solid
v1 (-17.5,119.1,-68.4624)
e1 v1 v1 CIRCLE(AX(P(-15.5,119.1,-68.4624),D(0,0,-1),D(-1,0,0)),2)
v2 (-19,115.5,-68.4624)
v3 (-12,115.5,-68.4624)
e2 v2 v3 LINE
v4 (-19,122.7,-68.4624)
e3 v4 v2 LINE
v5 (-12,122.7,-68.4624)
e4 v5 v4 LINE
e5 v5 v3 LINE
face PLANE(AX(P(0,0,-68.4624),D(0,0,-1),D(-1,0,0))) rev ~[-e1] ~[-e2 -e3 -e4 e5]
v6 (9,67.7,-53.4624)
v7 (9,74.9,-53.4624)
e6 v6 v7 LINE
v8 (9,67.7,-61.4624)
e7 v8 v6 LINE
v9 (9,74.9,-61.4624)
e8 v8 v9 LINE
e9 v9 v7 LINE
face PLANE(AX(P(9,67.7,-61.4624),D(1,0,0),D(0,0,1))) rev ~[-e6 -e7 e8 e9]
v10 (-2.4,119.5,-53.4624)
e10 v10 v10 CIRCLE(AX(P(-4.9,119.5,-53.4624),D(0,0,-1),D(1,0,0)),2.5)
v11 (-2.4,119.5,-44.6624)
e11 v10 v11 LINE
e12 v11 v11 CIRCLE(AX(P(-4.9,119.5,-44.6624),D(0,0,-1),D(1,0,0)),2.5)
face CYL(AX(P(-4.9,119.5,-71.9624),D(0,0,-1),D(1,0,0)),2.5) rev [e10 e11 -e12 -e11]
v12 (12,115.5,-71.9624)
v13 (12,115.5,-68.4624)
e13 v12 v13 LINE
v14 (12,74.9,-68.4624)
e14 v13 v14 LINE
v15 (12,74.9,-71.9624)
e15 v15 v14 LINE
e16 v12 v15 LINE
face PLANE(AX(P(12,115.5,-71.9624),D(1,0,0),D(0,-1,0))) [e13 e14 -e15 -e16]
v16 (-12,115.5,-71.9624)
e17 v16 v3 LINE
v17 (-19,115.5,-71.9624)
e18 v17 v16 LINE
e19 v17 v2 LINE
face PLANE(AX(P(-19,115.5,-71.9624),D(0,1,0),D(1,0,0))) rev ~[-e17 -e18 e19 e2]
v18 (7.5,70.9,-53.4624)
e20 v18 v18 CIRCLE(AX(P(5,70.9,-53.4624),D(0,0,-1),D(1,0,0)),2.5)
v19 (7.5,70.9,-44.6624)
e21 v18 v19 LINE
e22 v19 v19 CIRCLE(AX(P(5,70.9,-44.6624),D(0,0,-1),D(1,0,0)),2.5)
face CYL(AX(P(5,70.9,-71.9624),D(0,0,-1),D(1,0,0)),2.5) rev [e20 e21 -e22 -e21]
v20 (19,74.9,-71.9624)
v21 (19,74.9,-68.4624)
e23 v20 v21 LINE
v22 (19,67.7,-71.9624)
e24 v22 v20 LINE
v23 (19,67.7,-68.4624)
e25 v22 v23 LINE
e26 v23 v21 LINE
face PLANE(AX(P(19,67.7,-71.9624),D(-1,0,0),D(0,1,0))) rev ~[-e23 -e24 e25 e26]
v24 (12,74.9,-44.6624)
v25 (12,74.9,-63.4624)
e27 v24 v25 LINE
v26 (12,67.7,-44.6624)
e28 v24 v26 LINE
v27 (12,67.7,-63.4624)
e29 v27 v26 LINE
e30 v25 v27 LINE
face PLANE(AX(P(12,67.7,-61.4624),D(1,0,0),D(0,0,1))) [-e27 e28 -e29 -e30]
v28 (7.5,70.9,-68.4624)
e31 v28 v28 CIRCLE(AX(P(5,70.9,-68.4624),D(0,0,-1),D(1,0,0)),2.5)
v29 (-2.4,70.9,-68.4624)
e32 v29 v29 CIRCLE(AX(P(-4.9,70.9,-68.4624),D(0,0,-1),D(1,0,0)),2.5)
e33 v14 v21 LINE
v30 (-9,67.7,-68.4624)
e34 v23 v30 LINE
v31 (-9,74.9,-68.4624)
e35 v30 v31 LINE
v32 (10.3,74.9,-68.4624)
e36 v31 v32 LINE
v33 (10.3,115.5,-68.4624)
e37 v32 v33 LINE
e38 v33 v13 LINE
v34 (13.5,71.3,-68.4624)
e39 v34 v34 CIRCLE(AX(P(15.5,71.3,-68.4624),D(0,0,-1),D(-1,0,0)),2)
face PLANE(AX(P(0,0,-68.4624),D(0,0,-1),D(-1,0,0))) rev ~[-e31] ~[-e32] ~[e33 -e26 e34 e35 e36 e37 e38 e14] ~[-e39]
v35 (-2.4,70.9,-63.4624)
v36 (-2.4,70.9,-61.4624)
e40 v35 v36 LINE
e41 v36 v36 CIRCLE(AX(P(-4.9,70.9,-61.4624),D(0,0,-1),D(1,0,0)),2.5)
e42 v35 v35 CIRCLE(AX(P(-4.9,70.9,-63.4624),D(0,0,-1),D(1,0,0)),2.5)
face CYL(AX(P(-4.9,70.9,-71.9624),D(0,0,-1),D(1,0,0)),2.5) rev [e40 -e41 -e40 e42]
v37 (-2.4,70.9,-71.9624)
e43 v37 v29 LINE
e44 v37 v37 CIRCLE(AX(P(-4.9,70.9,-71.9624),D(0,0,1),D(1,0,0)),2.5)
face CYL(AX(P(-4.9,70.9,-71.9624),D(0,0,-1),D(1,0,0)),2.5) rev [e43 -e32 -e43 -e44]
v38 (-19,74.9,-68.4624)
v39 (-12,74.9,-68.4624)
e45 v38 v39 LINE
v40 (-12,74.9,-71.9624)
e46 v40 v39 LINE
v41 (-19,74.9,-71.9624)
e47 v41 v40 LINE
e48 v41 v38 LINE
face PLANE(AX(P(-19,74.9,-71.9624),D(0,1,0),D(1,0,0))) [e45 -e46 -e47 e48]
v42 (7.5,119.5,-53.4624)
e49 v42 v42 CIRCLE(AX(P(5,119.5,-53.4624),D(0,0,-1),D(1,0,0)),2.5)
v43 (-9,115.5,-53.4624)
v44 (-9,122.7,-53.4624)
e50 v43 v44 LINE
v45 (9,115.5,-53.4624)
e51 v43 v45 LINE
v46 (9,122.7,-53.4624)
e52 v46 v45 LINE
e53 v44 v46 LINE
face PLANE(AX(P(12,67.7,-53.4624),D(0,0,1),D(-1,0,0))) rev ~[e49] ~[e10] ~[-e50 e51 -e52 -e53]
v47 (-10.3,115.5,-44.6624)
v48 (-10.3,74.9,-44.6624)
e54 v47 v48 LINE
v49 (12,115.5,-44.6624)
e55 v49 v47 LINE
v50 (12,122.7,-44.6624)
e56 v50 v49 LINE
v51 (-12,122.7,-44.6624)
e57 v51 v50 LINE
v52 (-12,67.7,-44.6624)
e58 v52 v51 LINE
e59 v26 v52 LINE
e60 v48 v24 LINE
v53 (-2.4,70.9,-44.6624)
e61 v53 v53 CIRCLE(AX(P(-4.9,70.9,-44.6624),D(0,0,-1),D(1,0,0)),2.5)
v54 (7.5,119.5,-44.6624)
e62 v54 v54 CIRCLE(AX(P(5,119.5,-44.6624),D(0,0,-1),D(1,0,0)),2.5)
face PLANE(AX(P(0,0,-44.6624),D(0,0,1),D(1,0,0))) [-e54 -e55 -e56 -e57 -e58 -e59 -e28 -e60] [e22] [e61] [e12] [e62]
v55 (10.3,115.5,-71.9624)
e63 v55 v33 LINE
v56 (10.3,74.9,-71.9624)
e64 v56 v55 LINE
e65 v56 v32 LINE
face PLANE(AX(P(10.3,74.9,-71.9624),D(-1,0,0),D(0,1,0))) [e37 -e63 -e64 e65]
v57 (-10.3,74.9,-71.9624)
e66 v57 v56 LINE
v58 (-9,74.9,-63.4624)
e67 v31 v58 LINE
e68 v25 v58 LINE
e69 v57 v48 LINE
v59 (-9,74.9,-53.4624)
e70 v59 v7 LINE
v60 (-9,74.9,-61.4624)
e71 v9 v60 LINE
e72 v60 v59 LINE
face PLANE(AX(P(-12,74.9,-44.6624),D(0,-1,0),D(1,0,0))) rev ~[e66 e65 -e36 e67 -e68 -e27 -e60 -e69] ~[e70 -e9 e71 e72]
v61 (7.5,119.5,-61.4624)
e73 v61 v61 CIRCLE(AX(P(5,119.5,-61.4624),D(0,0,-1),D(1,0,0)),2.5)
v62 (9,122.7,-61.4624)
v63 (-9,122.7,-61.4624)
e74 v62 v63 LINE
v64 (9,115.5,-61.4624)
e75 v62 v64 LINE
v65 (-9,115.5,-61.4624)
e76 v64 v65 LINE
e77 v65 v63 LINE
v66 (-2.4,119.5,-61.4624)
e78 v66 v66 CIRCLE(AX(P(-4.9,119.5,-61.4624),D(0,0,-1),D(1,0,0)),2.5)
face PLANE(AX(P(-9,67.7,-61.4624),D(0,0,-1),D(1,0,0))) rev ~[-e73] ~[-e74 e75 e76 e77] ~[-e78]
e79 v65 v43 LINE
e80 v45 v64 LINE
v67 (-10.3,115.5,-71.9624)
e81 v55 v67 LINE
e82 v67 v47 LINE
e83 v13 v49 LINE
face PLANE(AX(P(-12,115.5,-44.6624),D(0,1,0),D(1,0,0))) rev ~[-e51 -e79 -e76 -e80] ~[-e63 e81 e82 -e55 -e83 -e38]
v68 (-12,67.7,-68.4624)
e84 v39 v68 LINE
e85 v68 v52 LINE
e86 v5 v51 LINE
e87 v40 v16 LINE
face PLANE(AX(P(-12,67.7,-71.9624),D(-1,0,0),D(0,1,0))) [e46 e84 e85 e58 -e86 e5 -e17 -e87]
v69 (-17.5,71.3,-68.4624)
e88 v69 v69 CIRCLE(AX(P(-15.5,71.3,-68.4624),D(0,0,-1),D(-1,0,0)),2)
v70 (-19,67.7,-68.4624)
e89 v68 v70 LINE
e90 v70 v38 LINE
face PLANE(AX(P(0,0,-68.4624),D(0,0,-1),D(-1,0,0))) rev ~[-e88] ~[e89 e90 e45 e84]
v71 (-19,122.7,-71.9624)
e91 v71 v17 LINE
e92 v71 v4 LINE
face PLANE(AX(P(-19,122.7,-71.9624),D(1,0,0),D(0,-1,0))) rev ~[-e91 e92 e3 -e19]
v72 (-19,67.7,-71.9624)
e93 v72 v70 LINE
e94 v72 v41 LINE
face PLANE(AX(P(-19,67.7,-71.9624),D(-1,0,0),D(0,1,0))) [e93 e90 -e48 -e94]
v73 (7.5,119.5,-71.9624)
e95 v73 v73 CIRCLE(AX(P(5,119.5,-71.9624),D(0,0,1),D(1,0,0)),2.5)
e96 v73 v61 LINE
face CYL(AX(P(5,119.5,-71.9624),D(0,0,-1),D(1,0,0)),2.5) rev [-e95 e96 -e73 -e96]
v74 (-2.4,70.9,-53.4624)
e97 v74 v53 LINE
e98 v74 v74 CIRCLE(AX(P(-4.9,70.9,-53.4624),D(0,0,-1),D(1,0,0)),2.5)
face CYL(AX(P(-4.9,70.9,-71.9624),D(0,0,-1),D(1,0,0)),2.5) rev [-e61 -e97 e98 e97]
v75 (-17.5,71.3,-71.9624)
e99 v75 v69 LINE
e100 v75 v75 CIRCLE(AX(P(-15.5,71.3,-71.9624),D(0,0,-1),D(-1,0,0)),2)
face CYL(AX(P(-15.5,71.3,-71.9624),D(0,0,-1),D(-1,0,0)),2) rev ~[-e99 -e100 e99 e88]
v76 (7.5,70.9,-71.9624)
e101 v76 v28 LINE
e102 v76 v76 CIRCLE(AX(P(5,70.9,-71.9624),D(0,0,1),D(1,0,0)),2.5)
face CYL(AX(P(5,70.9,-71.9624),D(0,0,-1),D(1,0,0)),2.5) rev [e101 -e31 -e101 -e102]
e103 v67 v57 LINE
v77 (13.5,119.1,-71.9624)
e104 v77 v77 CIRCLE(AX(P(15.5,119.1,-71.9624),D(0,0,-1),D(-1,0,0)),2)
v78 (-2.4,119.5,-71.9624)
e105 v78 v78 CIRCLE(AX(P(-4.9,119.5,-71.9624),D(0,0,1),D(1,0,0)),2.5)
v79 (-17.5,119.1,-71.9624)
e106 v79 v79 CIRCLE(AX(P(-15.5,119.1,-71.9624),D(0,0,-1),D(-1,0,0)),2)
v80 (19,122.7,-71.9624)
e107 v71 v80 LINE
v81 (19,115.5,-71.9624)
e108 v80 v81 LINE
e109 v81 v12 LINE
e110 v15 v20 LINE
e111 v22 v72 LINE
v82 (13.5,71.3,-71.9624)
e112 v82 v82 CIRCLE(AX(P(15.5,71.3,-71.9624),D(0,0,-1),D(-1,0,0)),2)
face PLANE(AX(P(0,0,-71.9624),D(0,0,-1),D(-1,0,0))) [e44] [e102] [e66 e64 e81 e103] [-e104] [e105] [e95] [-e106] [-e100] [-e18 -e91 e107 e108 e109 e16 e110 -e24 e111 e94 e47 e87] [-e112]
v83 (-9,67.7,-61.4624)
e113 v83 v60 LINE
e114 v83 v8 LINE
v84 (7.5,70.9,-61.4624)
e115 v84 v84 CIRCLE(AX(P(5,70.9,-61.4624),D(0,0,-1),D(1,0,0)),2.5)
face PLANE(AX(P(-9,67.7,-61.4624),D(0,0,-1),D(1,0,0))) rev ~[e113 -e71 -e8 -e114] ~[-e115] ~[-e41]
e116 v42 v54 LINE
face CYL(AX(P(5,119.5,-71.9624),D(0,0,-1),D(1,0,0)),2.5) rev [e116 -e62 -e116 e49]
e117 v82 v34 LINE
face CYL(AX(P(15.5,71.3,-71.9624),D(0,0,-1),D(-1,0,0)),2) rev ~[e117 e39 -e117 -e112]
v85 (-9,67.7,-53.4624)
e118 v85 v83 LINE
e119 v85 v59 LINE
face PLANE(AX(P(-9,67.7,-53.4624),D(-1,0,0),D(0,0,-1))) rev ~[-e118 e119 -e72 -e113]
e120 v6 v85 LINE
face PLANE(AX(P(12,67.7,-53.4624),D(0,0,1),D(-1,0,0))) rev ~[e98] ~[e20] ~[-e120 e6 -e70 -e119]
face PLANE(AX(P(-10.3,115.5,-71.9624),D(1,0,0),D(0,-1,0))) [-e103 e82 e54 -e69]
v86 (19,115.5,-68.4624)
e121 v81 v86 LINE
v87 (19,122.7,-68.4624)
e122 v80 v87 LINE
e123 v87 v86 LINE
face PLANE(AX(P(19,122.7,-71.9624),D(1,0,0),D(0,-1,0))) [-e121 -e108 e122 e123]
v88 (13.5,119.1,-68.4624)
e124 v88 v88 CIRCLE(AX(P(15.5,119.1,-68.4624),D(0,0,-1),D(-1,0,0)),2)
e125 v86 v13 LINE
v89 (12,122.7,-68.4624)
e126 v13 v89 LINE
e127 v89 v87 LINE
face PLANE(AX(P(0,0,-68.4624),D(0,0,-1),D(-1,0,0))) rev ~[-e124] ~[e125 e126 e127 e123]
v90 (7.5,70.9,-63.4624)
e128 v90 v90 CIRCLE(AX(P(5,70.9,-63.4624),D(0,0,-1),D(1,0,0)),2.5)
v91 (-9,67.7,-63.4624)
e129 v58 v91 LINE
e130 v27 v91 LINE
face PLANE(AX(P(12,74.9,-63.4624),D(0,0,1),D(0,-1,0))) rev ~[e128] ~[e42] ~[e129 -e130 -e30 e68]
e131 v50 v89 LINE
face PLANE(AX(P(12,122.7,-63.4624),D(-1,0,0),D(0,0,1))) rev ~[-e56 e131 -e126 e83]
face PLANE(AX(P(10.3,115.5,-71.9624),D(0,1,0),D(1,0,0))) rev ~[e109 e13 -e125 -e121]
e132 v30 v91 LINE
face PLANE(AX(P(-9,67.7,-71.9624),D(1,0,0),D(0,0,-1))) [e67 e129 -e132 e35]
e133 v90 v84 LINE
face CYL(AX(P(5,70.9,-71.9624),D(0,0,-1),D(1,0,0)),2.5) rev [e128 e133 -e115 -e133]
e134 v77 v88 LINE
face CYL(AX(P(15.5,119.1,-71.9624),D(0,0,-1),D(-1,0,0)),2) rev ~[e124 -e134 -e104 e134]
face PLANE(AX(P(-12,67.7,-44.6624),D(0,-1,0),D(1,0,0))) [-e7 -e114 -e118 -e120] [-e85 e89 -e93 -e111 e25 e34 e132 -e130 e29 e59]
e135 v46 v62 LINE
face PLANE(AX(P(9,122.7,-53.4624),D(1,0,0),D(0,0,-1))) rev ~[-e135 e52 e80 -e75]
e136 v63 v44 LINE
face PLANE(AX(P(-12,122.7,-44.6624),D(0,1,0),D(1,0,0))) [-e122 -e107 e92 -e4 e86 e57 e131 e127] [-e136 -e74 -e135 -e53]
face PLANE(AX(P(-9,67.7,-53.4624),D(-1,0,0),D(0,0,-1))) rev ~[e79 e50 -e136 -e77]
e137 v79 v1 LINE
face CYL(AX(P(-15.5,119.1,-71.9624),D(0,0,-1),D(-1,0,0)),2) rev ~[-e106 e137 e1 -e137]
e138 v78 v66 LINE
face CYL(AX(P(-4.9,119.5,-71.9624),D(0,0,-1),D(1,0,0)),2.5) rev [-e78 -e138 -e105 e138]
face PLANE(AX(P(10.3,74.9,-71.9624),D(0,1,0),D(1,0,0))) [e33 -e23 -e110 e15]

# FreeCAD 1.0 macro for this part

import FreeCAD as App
import Part
import Sketcher
from FreeCAD import Vector


def add_polygon(sketch, points):
    """Adds a closed chain of lines whose ends are joined by coincident constraints."""
    first, n = sketch.GeometryCount, len(points)
    for a, b in zip(points, points[1:] + points[:1]):
        sketch.addGeometry(Part.LineSegment(App.Vector(*a, 0), App.Vector(*b, 0)), False)
    for i in range(n):
        sketch.addConstraint(Sketcher.Constraint("Coincident", first + i, 2, first + (i + 1) % n, 1))

doc = App.newDocument("Part")
params = doc.addObject("Spreadsheet::Sheet", "Params")
for row, (alias, value) in enumerate([
    ("sketch1_height", "55 mm"),
    ("sketch1_width", "24 mm"),
    ("sketch1_width2", "22.3 mm"),
    ("sketch1_height2", "40.6 mm"),
    ("pad1_length", "27.3 mm"),
    ("sketch2_height", "5 mm"),
    ("sketch2_width", "7.2 mm"),
    ("pocket1_length", "21 mm"),
    ("sketch3_diameter", "4 mm"),
    ("sketch3_width", "7 mm"),
    ("pad2_length", "3.5 mm"),
    ("sketch4_diameter", "5 mm"),
    ("sketch5_height", "8 mm"),
    ("sketch5_width", "21 mm"),
    ("sketch6_width", "1.7 mm"),
    ("sketch6_height", "40.6 mm"),
    ("pad3_length", "3.5 mm"),
    ("sketch7_width", "3 mm"),
    ("sketch7_height", "10 mm"),
    ("pad4_length", "7.2 mm"),
    ("sketch8_width", "3 mm"),
    ("sketch8_height", "8 mm"),
    ("pad5_length", "7.2 mm"),
], start=1):
    params.set(f"A{row}", alias)
    params.set(f"B{row}", "=" + value)
    params.setAlias(f"B{row}", alias)

body = doc.addObject("PartDesign::Body", "Body")

# Sketch on XY plane
sketch1 = body.newObject("Sketcher::SketchObject", "Sketch")
sketch1.AttachmentSupport = (doc.getObject("XY_Plane"), [""])
sketch1.MapMode = "FlatFace"
sketch1.AttachmentOffset = App.Placement(Vector(0, 0, -71.9624), App.Rotation())
add_polygon(sketch1, [(12, 75), (-10, 75), (-10, 116), (12, 116), (12, 123), (-12, 123), (-12, 68), (12, 68)])  # lines 0-7
sketch1.addConstraint([
    Sketcher.Constraint("Horizontal", 0),
    Sketcher.Constraint("Vertical", 1),
    Sketcher.Constraint("Horizontal", 2),
    Sketcher.Constraint("Vertical", 3),
    Sketcher.Constraint("Horizontal", 4),
    Sketcher.Constraint("Vertical", 5),
    Sketcher.Constraint("Horizontal", 6),
    Sketcher.Constraint("Vertical", 7),
    Sketcher.Constraint("Vertical", 3, 2, 6, 2),
    Sketcher.Constraint("Equal", 3, 7),
    Sketcher.Constraint("DistanceY", 5, 2, 5, 1, 55.0),
    Sketcher.Constraint("DistanceX", 4, 2, 4, 1, 24.0),
    Sketcher.Constraint("DistanceX", 0, 2, 0, 1, 22.3),
    Sketcher.Constraint("DistanceY", 1, 1, 1, 2, 40.6),
    Sketcher.Constraint("DistanceX", -1, 1, 2, 2, 12.0),
    Sketcher.Constraint("DistanceY", -1, 1, 0, 2, 74.9),
])
sketch1.setExpression("Constraints[18]", "Params.sketch1_height")
sketch1.setExpression("Constraints[19]", "Params.sketch1_width")
sketch1.setExpression("Constraints[20]", "Params.sketch1_width2")
sketch1.setExpression("Constraints[21]", "Params.sketch1_height2")
pad1 = body.newObject("PartDesign::Pad", "Pad")
pad1.Profile = sketch1
pad1.setExpression("Length", "Params.pad1_length")

# Sketch on YZ plane
sketch2 = body.newObject("Sketcher::SketchObject", "Sketch001")
sketch2.AttachmentSupport = (doc.getObject("YZ_Plane"), [""])
sketch2.MapMode = "FlatFace"
sketch2.AttachmentOffset = App.Placement(Vector(0, 0, 12), App.Rotation())
add_polygon(sketch2, [(68, -63), (68, -68), (75, -68), (75, -63)])  # lines 0-3
sketch2.addConstraint([
    Sketcher.Constraint("Vertical", 0),
    Sketcher.Constraint("Horizontal", 1),
    Sketcher.Constraint("Vertical", 2),
    Sketcher.Constraint("Horizontal", 3),
    Sketcher.Constraint("DistanceY", 0, 2, 0, 1, 5.0),
    Sketcher.Constraint("DistanceX", 1, 1, 1, 2, 7.2),
    Sketcher.Constraint("DistanceX", -1, 1, 0, 2, 67.7),
    Sketcher.Constraint("DistanceY", 0, 2, -1, 1, 68.4624),
])
sketch2.setExpression("Constraints[8]", "Params.sketch2_height")
sketch2.setExpression("Constraints[9]", "Params.sketch2_width")
pocket1 = body.newObject("PartDesign::Pocket", "Pocket")
pocket1.Profile = sketch2
pocket1.setExpression("Length", "Params.pocket1_length")

# Sketch on XY plane
sketch3 = body.newObject("Sketcher::SketchObject", "Sketch002")
sketch3.AttachmentSupport = (doc.getObject("XY_Plane"), [""])
sketch3.MapMode = "FlatFace"
sketch3.AttachmentOffset = App.Placement(Vector(0, 0, -71.9624), App.Rotation())
add_polygon(sketch3, [(19, 67.7), (12, 67.7), (12, 74.9), (19, 74.9)])  # lines 0-3
sketch3.addGeometry(Part.Circle(Vector(15.5, 71.3, 0), Vector(0, 0, 1), 2), False)  # 4
add_polygon(sketch3, [(12, 115.5), (12, 122.7), (19, 122.7), (19, 115.5)])  # lines 5-8
sketch3.addGeometry(Part.Circle(Vector(15.5, 119.1, 0), Vector(0, 0, 1), 2), False)  # 9
add_polygon(sketch3, [(-12, 122.7), (-12, 115.5), (-19, 115.5), (-19, 122.7)])  # lines 10-13
sketch3.addGeometry(Part.Circle(Vector(-15.5, 119.1, 0), Vector(0, 0, 1), 2), False)  # 14
add_polygon(sketch3, [(-12, 74.9), (-12, 67.7), (-19, 67.7), (-19, 74.9)])  # lines 15-18
sketch3.addGeometry(Part.Circle(Vector(-15.5, 71.3, 0), Vector(0, 0, 1), 2), False)  # 19
sketch3.addConstraint([
    Sketcher.Constraint("Horizontal", 0),
    Sketcher.Constraint("Vertical", 1),
    Sketcher.Constraint("Horizontal", 2),
    Sketcher.Constraint("Vertical", 3),
    Sketcher.Constraint("Vertical", 5),
    Sketcher.Constraint("Horizontal", 6),
    Sketcher.Constraint("Vertical", 7),
    Sketcher.Constraint("Horizontal", 8),
    Sketcher.Constraint("Vertical", 10),
    Sketcher.Constraint("Horizontal", 11),
    Sketcher.Constraint("Vertical", 12),
    Sketcher.Constraint("Horizontal", 13),
    Sketcher.Constraint("Vertical", 15),
    Sketcher.Constraint("Horizontal", 16),
    Sketcher.Constraint("Vertical", 17),
    Sketcher.Constraint("Horizontal", 18),
    Sketcher.Constraint("Equal", 4, 9),
    Sketcher.Constraint("Equal", 9, 14),
    Sketcher.Constraint("Equal", 14, 19),
    Sketcher.Constraint("Symmetric", 9, 3, 14, 3, -2),
    Sketcher.Constraint("Symmetric", 4, 3, 19, 3, -2),
    Sketcher.Constraint("Symmetric", 8, 2, 10, 2, -2),
    Sketcher.Constraint("Symmetric", 6, 2, 12, 2, -2),
    Sketcher.Constraint("Symmetric", 0, 2, 15, 2, -2),
    Sketcher.Constraint("Symmetric", 2, 2, 17, 2, -2),
    Sketcher.Constraint("Vertical", 4, 3, 9, 3),
    Sketcher.Constraint("Vertical", 1, 2, 5, 2),
    Sketcher.Constraint("Vertical", 3, 2, 6, 2),
    Sketcher.Constraint("Equal", 3, 5),
    Sketcher.Constraint("Diameter", 4, 4.0),
    Sketcher.Constraint("DistanceX", 0, 2, 0, 1, 7.0),
    Sketcher.Constraint("DistanceX", 0, 2, 4, 3, 3.5),
    Sketcher.Constraint("DistanceY", 0, 2, 4, 3, 3.6),
    Sketcher.Constraint("DistanceY", 4, 3, 1, 2, 3.6),
    Sketcher.Constraint("DistanceY", 9, 3, 5, 2, 3.6),
    Sketcher.Constraint("DistanceX", -1, 1, 0, 2, 12.0),
    Sketcher.Constraint("DistanceY", -1, 1, 4, 3, 71.3),
    Sketcher.Constraint("DistanceY", -1, 1, 9, 3, 119.1),
])
sketch3.setExpression("Constraints[45]", "Params.sketch3_diameter")
sketch3.setExpression("Constraints[46]", "Params.sketch3_width")
pad2 = body.newObject("PartDesign::Pad", "Pad001")
pad2.Profile = sketch3
pad2.setExpression("Length", "Params.pad2_length")

# Sketch on XY plane
sketch4 = body.newObject("Sketcher::SketchObject", "Sketch003")
sketch4.AttachmentSupport = (doc.getObject("XY_Plane"), [""])
sketch4.MapMode = "FlatFace"
sketch4.AttachmentOffset = App.Placement(Vector(0, 0, -71.9624), App.Rotation())
sketch4.addGeometry([
    Part.Circle(Vector(-4.9, 70.9, 0), Vector(0, 0, 1), 2.5),
    Part.Circle(Vector(5, 70.9, 0), Vector(0, 0, 1), 2.5),
    Part.Circle(Vector(5, 119.5, 0), Vector(0, 0, 1), 2.5),
    Part.Circle(Vector(-4.9, 119.5, 0), Vector(0, 0, 1), 2.5),
], False)
sketch4.addConstraint([
    Sketcher.Constraint("Equal", 0, 1),
    Sketcher.Constraint("Equal", 1, 2),
    Sketcher.Constraint("Equal", 2, 3),
    Sketcher.Constraint("Horizontal", 0, 3, 1, 3),
    Sketcher.Constraint("Horizontal", 2, 3, 3, 3),
    Sketcher.Constraint("Vertical", 1, 3, 2, 3),
    Sketcher.Constraint("Vertical", 0, 3, 3, 3),
    Sketcher.Constraint("Diameter", 0, 5.0),
    Sketcher.Constraint("DistanceX", -1, 1, 1, 3, 5.0),
    Sketcher.Constraint("DistanceX", 0, 3, -1, 1, 4.9),
    Sketcher.Constraint("DistanceY", -1, 1, 0, 3, 70.9),
    Sketcher.Constraint("DistanceY", -1, 1, 2, 3, 119.5),
])
sketch4.setExpression("Constraints[7]", "Params.sketch4_diameter")
pocket2 = body.newObject("PartDesign::Pocket", "Pocket001")
pocket2.Profile = sketch4
pocket2.Type = "ThroughAll"
pocket2.Reversed = True

# Sketch on XZ plane
sketch5 = body.newObject("Sketcher::SketchObject", "Sketch004")
sketch5.AttachmentSupport = (doc.getObject("XZ_Plane"), [""])
sketch5.MapMode = "FlatFace"
sketch5.AttachmentOffset = App.Placement(Vector(0, 0, -67.7), App.Rotation())
add_polygon(sketch5, [(-9, -61), (12, -61), (12, -53), (-9, -53)])  # lines 0-3
sketch5.addConstraint([
    Sketcher.Constraint("Horizontal", 0),
    Sketcher.Constraint("Vertical", 1),
    Sketcher.Constraint("Horizontal", 2),
    Sketcher.Constraint("Vertical", 3),
    Sketcher.Constraint("DistanceY", 1, 1, 1, 2, 8.0),
    Sketcher.Constraint("DistanceX", 0, 1, 0, 2, 21.0),
    Sketcher.Constraint("DistanceX", -1, 1, 0, 2, 12.0),
    Sketcher.Constraint("DistanceY", 0, 2, -1, 1, 61.4624),
])
sketch5.setExpression("Constraints[8]", "Params.sketch5_height")
sketch5.setExpression("Constraints[9]", "Params.sketch5_width")
pocket3 = body.newObject("PartDesign::Pocket", "Pocket002")
pocket3.Profile = sketch5
pocket3.Type = "ThroughAll"

# Sketch on XY plane
sketch6 = body.newObject("Sketcher::SketchObject", "Sketch005")
sketch6.AttachmentSupport = (doc.getObject("XY_Plane"), [""])
sketch6.MapMode = "FlatFace"
sketch6.AttachmentOffset = App.Placement(Vector(0, 0, -71.9624), App.Rotation())
add_polygon(sketch6, [(10.3, 74.9), (10.3, 115.5), (12, 115.5), (12, 74.9)])  # lines 0-3
sketch6.addConstraint([
    Sketcher.Constraint("Vertical", 0),
    Sketcher.Constraint("Horizontal", 1),
    Sketcher.Constraint("Vertical", 2),
    Sketcher.Constraint("Horizontal", 3),
    Sketcher.Constraint("DistanceX", 1, 1, 1, 2, 1.7),
    Sketcher.Constraint("DistanceY", 0, 1, 0, 2, 40.6),
    Sketcher.Constraint("DistanceX", -1, 1, 1, 2, 12.0),
    Sketcher.Constraint("DistanceY", -1, 1, 0, 2, 115.5),
])
sketch6.setExpression("Constraints[8]", "Params.sketch6_width")
sketch6.setExpression("Constraints[9]", "Params.sketch6_height")
pad3 = body.newObject("PartDesign::Pad", "Pad002")
pad3.Profile = sketch6
pad3.setExpression("Length", "Params.pad3_length")

# Sketch on XZ plane
sketch7 = body.newObject("Sketcher::SketchObject", "Sketch006")
sketch7.AttachmentSupport = (doc.getObject("XZ_Plane"), [""])
sketch7.MapMode = "FlatFace"
sketch7.AttachmentOffset = App.Placement(Vector(0, 0, -122.7), App.Rotation())
add_polygon(sketch7, [(9, -53.5), (12, -53.5), (12, -63.5), (9, -63.5)])  # lines 0-3
sketch7.addConstraint([
    Sketcher.Constraint("Horizontal", 0),
    Sketcher.Constraint("Vertical", 1),
    Sketcher.Constraint("Horizontal", 2),
    Sketcher.Constraint("Vertical", 3),
    Sketcher.Constraint("DistanceX", 0, 1, 0, 2, 3.0),
    Sketcher.Constraint("DistanceY", 1, 2, 1, 1, 10.0),
    Sketcher.Constraint("DistanceX", -1, 1, 0, 2, 12.0),
    Sketcher.Constraint("DistanceY", 0, 2, -1, 1, 53.4624),
])
sketch7.setExpression("Constraints[8]", "Params.sketch7_width")
sketch7.setExpression("Constraints[9]", "Params.sketch7_height")
pad4 = body.newObject("PartDesign::Pad", "Pad003")
pad4.Profile = sketch7
pad4.setExpression("Length", "Params.pad4_length")

# Sketch on XZ plane
sketch8 = body.newObject("Sketcher::SketchObject", "Sketch007")
sketch8.AttachmentSupport = (doc.getObject("XZ_Plane"), [""])
sketch8.MapMode = "FlatFace"
sketch8.AttachmentOffset = App.Placement(Vector(0, 0, -67.7), App.Rotation())
add_polygon(sketch8, [(9, -61.5), (12, -61.5), (12, -53.5), (9, -53.5)])  # lines 0-3
sketch8.addConstraint([
    Sketcher.Constraint("Horizontal", 0),
    Sketcher.Constraint("Vertical", 1),
    Sketcher.Constraint("Horizontal", 2),
    Sketcher.Constraint("Vertical", 3),
    Sketcher.Constraint("DistanceX", 0, 1, 0, 2, 3.0),
    Sketcher.Constraint("DistanceY", 1, 1, 1, 2, 8.0),
    Sketcher.Constraint("DistanceX", -1, 1, 0, 2, 12.0),
    Sketcher.Constraint("DistanceY", 0, 2, -1, 1, 61.4624),
])
sketch8.setExpression("Constraints[8]", "Params.sketch8_width")
sketch8.setExpression("Constraints[9]", "Params.sketch8_height")
pad5 = body.newObject("PartDesign::Pad", "Pad004")
pad5.Profile = sketch8
pad5.setExpression("Length", "Params.pad5_length")
pad5.Reversed = True

doc.recompute()
